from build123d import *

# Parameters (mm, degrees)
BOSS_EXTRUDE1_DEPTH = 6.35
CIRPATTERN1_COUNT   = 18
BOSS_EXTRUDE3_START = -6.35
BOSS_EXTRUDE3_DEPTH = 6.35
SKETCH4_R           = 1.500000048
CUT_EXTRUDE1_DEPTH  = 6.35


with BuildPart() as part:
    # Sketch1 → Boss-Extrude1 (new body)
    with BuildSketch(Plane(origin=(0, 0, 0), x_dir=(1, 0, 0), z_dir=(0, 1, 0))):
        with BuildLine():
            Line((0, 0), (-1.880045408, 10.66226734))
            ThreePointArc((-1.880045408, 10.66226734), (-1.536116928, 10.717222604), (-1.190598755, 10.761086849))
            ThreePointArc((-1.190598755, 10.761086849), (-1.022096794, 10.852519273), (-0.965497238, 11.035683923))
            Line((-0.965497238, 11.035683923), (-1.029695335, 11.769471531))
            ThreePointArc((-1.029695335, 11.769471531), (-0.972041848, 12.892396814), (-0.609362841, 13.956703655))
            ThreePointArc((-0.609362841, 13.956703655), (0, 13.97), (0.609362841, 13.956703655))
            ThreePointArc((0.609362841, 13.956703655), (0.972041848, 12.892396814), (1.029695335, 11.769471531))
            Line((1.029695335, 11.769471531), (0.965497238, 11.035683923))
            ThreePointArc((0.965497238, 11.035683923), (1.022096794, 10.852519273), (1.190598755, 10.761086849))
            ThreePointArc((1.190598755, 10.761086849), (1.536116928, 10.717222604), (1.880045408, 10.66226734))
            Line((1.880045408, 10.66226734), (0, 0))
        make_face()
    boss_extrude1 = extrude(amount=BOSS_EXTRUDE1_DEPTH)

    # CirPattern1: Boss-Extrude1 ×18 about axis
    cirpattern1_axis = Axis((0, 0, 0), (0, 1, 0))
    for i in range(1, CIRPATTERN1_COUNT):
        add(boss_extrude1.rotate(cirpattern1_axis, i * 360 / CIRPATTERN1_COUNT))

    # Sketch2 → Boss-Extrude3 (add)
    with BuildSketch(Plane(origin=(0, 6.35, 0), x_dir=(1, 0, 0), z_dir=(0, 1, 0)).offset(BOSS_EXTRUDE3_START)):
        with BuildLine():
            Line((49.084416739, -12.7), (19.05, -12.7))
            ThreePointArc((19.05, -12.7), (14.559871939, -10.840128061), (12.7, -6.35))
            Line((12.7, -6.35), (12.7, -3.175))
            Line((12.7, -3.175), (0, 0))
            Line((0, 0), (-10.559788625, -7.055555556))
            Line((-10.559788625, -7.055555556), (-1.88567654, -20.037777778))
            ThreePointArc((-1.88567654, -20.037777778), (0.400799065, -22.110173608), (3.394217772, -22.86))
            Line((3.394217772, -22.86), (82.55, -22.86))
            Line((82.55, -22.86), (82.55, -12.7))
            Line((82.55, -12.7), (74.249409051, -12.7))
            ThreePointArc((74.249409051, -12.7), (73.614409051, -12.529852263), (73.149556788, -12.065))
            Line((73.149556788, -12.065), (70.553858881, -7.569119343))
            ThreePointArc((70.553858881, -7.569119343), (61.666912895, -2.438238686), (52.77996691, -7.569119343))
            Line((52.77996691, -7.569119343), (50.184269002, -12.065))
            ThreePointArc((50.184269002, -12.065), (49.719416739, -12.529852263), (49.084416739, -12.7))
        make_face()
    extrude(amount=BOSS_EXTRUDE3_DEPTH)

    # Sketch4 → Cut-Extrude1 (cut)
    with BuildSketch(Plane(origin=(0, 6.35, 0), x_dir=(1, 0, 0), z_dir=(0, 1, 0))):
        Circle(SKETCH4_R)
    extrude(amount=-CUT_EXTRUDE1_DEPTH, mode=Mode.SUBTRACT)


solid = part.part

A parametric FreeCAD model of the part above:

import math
import FreeCAD as App
import Part
import Sketcher
Q = App.Units.Quantity

doc = App.newDocument("Part")
body = doc.addObject("PartDesign::Body", "Body")

sketch1 = doc.addObject("Sketcher::SketchObject", "Sketch")
body.addObject(sketch1)
sketch1.AttachmentSupport = (doc.XZ_Plane, [""])
sketch1.MapMode = "FlatFace"
sketch1.addGeometry([
    Part.LineSegment(App.Vector(-1.88, -10.66, 0), App.Vector(0, 0, 0)),
    Part.LineSegment(App.Vector(0, 0, 0), App.Vector(1.88, -10.66, 0)),
    Part.ArcOfCircle(Part.Circle(App.Vector(0, 0, 0), App.Vector(0, 0, 1), 10.83), math.radians(-83.69), math.radians(-80)),
    Part.ArcOfCircle(Part.Circle(App.Vector(1.22, -11.01, 0), App.Vector(0, 0, 1), 0.25), math.radians(96), math.radians(185)),
    Part.LineSegment(App.Vector(0.97, -11.04, 0), App.Vector(1.03, -11.77, 0)),
    Part.ArcOfCircle(Part.Circle(App.Vector(-3.03, -12.12, 0), App.Vector(0, 0, 1), 4.07), math.radians(-27), math.radians(5)),
    Part.ArcOfCircle(Part.Circle(App.Vector(0, 0, 0), App.Vector(0, 0, 1), 13.97), math.radians(-92.5), math.radians(-87.5)),
    Part.ArcOfCircle(Part.Circle(App.Vector(3.03, -12.12, 0), App.Vector(0, 0, 1), 4.07), math.radians(175), math.radians(207)),
    Part.LineSegment(App.Vector(-1.03, -11.77, 0), App.Vector(-0.97, -11.04, 0)),
    Part.ArcOfCircle(Part.Circle(App.Vector(-1.22, -11.01, 0), App.Vector(0, 0, 1), 0.25), math.radians(-5), math.radians(84)),
    Part.ArcOfCircle(Part.Circle(App.Vector(0, 0, 0), App.Vector(0, 0, 1), 10.83), math.radians(-100), math.radians(-96.31)),
], False)
sketch1.addConstraint([
    Sketcher.Constraint("Coincident", 0, 2, 1, 1),
    Sketcher.Constraint("Coincident", 1, 2, 2, 2),
    Sketcher.Constraint("Tangent", 2, 1, 3, 1),
    Sketcher.Constraint("Tangent", 3, 2, 4, 1),
    Sketcher.Constraint("Tangent", 4, 2, 5, 2),
    Sketcher.Constraint("Coincident", 5, 1, 6, 2),
    Sketcher.Constraint("Coincident", 6, 1, 7, 2),
    Sketcher.Constraint("Tangent", 7, 1, 8, 1),
    Sketcher.Constraint("Tangent", 8, 2, 9, 1),
    Sketcher.Constraint("Tangent", 9, 2, 10, 2),
    Sketcher.Constraint("Coincident", 10, 1, 0, 1),
    Sketcher.Constraint("Coincident", 2, 3, -1, 1),
    Sketcher.Constraint("Coincident", 6, 3, -1, 1),
    Sketcher.Constraint("Coincident", 10, 3, -1, 1),
    Sketcher.Constraint("Coincident", 0, 2, -1, 1),
    Sketcher.Constraint("Equal", 5, 7),
    Sketcher.Constraint("Equal", 3, 9),
    Sketcher.Constraint("Equal", 2, 10),
    Sketcher.Constraint("Symmetric", 5, 3, 7, 3, -2),
    Sketcher.Constraint("Horizontal", 3, 3, 9, 3),
    Sketcher.Constraint("Horizontal", 1, 2, 10, 1),
    Sketcher.Constraint("Radius", 3, Q("0.01 in")),
    Sketcher.Constraint("Radius", 6, Q("0.55 in")),
    Sketcher.Constraint("Angle", 0, Q("80 deg")),
    Sketcher.Constraint("Angle", 4, Q("-85 deg")),
    Sketcher.Constraint("Radius", 2, Q("10.826751 mm")),
    Sketcher.Constraint("Radius", 5, Q("4.070369 mm")),
    Sketcher.Constraint("DistanceY", 4, 2, 2, 1, Q("0.0397002 in")),
    Sketcher.Constraint("DistanceX", -1, 1, 2, 1, Q("1.190599 mm")),
])
pad1 = doc.addObject("PartDesign::Pad", "Pad")
body.addObject(pad1)
pad1.Profile = sketch1
pad1.Length = Q("0.25 in")
pad1.Reversed = True
doc.recompute()

polarpattern = doc.addObject("PartDesign::PolarPattern", "PolarPattern")
body.addObject(polarpattern)
polarpattern.Originals = [pad1]
polarpattern.Axis = (doc.Y_Axis, [""])
polarpattern.Angle = 360
polarpattern.Occurrences = 18
body.Tip = polarpattern

sketch2 = doc.addObject("Sketcher::SketchObject", "Sketch001")
body.addObject(sketch2)
sketch2.AttachmentSupport = (doc.XZ_Plane, [""])
sketch2.MapMode = "FlatFace"
sketch2.addGeometry([
    Part.LineSegment(App.Vector(49.1, 12.7, 0), App.Vector(19.1, 12.7, 0)),
    Part.ArcOfCircle(Part.Circle(App.Vector(19, 6.4, 0), App.Vector(0, 0, 1), 6.3), math.radians(90), math.radians(180)),
    Part.LineSegment(App.Vector(12.7, 6.3, 0), App.Vector(12.7, 3.2, 0)),
    Part.LineSegment(App.Vector(12.7, 3.2, 0), App.Vector(0, 0, 0)),
    Part.LineSegment(App.Vector(0, 0, 0), App.Vector(-10.6, 7.1, 0)),
    Part.LineSegment(App.Vector(-10.6, 7.1, 0), App.Vector(-1.9, 20, 0)),
    Part.ArcOfCircle(Part.Circle(App.Vector(3.4, 16.5, 0), App.Vector(0, 0, 1), 6.4), math.radians(90), math.radians(146)),
    Part.LineSegment(App.Vector(3.4, 22.9, 0), App.Vector(82.5, 22.9, 0)),
    Part.LineSegment(App.Vector(82.5, 22.9, 0), App.Vector(82.5, 12.7, 0)),
    Part.LineSegment(App.Vector(82.5, 12.7, 0), App.Vector(74.2, 12.7, 0)),
    Part.ArcOfCircle(Part.Circle(App.Vector(74.2, 11.4, 0), App.Vector(0, 0, 1), 1.3), math.radians(90), math.radians(150)),
    Part.LineSegment(App.Vector(73.1, 12.1, 0), App.Vector(70.6, 7.6, 0)),
    Part.ArcOfCircle(Part.Circle(App.Vector(61.7, 12.7, 0), App.Vector(0, 0, 1), 10.3), math.radians(-150), math.radians(-30)),
    Part.LineSegment(App.Vector(52.8, 7.6, 0), App.Vector(50.2, 12.1, 0)),
    Part.ArcOfCircle(Part.Circle(App.Vector(49.1, 11.4, 0), App.Vector(0, 0, 1), 1.3), math.radians(30), math.radians(90)),
], False)
sketch2.addConstraint([
    Sketcher.Constraint("Tangent", 0, 2, 1, 1),
    Sketcher.Constraint("Tangent", 1, 2, 2, 1),
    Sketcher.Constraint("Coincident", 2, 2, 3, 1),
    Sketcher.Constraint("Coincident", 3, 2, 4, 1),
    Sketcher.Constraint("Coincident", 4, 2, 5, 1),
    Sketcher.Constraint("Tangent", 5, 2, 6, 2),
    Sketcher.Constraint("Tangent", 6, 1, 7, 1),
    Sketcher.Constraint("Coincident", 7, 2, 8, 1),
    Sketcher.Constraint("Coincident", 8, 2, 9, 1),
    Sketcher.Constraint("Tangent", 9, 2, 10, 1),
    Sketcher.Constraint("Tangent", 10, 2, 11, 1),
    Sketcher.Constraint("Tangent", 11, 2, 12, 2),
    Sketcher.Constraint("Tangent", 12, 1, 13, 1),
    Sketcher.Constraint("Tangent", 13, 2, 14, 1),
    Sketcher.Constraint("Tangent", 14, 2, 0, 1),
    Sketcher.Constraint("Horizontal", 0),
    Sketcher.Constraint("Vertical", 2),
    Sketcher.Constraint("Horizontal", 7),
    Sketcher.Constraint("Vertical", 8),
    Sketcher.Constraint("Horizontal", 9),
    Sketcher.Constraint("Coincident", 3, 2, -1, 1),
    Sketcher.Constraint("Equal", 1, 6),
    Sketcher.Constraint("Equal", 10, 14),
    Sketcher.Constraint("Perpendicular", 4, 5),
    Sketcher.Constraint("Horizontal", 10, 3, 14, 3),
    Sketcher.Constraint("Horizontal", 12, 3, 0, 2),
    Sketcher.Constraint("Horizontal", 11, 2, 12, 1),
    Sketcher.Constraint("Radius", 1, Q("0.25 in")),
    Sketcher.Constraint("Radius", 10, Q("0.05 in")),
    Sketcher.Constraint("DistanceY", 8, 2, 8, 1, Q("0.4 in")),
    Sketcher.Constraint("Angle", 11, Q("-120 deg")),
    Sketcher.Constraint("Distance", 4, Q("0.5 in")),
    Sketcher.Constraint("DistanceY", -1, 1, 12, 3, Q("0.5 in")),
    Sketcher.Constraint("DistanceX", -1, 1, 1, 2, Q("0.5 in")),
    Sketcher.Constraint("DistanceX", 0, 2, 7, 2, Q("2.5 in")),
    Sketcher.Constraint("DistanceY", 2, 2, 2, 1, Q("0.125 in")),
    Sketcher.Constraint("Radius", 12, Q("10.261761 mm")),
    Sketcher.Constraint("Distance", 5, Q("15.613402 mm")),
    Sketcher.Constraint("DistanceX", 9, 2, 9, 1, Q("8.300591 mm")),
])
pad2 = doc.addObject("PartDesign::Pad", "Pad001")
body.addObject(pad2)
pad2.Profile = sketch2
pad2.Length = Q("0.25 in")
pad2.Reversed = True

sketch3 = doc.addObject("Sketcher::SketchObject", "Sketch002")
body.addObject(sketch3)
sketch3.AttachmentSupport = (doc.XZ_Plane, [""])
sketch3.MapMode = "FlatFace"
sketch3.AttachmentOffset = App.Placement(App.Vector(0, 0, -0.25 * 25.4), App.Rotation())
sketch3.addGeometry(Part.Circle(App.Vector(0, 0, 0), App.Vector(0, 0, 1), 1.5), False)
sketch3.addConstraint([
    Sketcher.Constraint("Coincident", 0, 3, -1, 1),
    Sketcher.Constraint("Diameter", 0, Q("3 mm")),
])
pocket1 = doc.addObject("PartDesign::Pocket", "Pocket")
body.addObject(pocket1)
pocket1.Profile = sketch3
pocket1.Length = Q("0.25 in")
pocket1.Reversed = True

doc.recompute()
